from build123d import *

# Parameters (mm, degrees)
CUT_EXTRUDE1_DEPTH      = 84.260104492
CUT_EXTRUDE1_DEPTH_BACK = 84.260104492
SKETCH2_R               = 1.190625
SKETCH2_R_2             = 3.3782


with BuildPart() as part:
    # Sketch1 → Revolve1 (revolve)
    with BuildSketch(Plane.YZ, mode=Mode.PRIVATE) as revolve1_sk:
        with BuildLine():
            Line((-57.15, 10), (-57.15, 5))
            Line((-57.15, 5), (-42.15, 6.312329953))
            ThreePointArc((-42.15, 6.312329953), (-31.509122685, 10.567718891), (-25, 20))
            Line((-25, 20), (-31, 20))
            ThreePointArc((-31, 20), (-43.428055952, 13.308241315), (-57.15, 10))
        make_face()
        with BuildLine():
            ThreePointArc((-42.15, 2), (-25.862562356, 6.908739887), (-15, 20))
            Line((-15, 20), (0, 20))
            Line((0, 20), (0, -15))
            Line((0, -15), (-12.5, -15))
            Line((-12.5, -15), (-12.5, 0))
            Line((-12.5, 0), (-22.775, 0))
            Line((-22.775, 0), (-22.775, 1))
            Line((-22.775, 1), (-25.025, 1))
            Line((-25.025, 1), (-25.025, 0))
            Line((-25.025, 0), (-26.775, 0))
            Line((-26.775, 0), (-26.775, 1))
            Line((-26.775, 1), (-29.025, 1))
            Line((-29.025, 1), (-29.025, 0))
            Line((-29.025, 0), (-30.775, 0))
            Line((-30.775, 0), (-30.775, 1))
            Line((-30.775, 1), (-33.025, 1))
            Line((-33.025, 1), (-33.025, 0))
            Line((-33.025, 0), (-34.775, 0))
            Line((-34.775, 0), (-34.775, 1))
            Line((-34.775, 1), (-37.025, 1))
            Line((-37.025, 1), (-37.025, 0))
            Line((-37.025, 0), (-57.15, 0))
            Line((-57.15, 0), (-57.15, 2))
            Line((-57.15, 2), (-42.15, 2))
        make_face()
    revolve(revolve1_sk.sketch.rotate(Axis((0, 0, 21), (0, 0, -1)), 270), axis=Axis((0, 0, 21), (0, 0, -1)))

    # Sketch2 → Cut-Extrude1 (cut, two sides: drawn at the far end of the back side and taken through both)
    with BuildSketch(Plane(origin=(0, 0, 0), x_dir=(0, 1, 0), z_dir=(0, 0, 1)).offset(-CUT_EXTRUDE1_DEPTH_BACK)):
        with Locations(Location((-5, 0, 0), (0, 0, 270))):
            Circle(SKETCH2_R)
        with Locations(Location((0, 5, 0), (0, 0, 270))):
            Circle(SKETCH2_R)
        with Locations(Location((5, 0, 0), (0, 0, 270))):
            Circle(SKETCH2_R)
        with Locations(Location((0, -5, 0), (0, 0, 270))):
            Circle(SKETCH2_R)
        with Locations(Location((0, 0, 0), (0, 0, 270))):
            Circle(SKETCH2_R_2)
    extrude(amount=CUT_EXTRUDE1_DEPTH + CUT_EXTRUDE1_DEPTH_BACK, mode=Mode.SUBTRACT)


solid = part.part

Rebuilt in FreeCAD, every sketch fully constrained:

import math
import FreeCAD as App
import Part
import Sketcher
Q = App.Units.Quantity

doc = App.newDocument("Part")
params = doc.addObject("Spreadsheet::Sheet", "Params")
for row, (alias, value) in enumerate([
    ("sketch1_radius", "55 mm"),
    ("sketch1_width", "6 mm"),
    ("sketch1_width2", "15 mm"),
    ("sketch1_height", "5 mm"),
    ("sketch1_height2", "2 mm"),
    ("revolution_angle", "360 deg"),
], start=1):
    params.set(f"A{row}", alias)
    params.set(f"B{row}", "=" + value)
    params.setAlias(f"B{row}", alias)

body = doc.addObject("PartDesign::Body", "Body")
body.AllowCompound = True

# Sketch on YZ plane
sketch1 = body.newObject("Sketcher::SketchObject", "Sketch")
sketch1.AttachmentSupport = (doc.getObject("YZ_Plane"), [""])
sketch1.MapMode = "FlatFace"
sketch1.addGeometry([
    Part.LineSegment(App.Vector(-57.15, 10, 0), App.Vector(-57.15, 5, 0)),  # 0
    Part.LineSegment(App.Vector(-57.15, 5, 0), App.Vector(-42.15, 6.31233, 0)),  # 1
    Part.ArcOfCircle(Part.Circle(App.Vector(-43.878184, 26.065565, 0), App.Vector(0, 0, 1), 19.828689), math.radians(-85), math.radians(-17.812224)),  # 2
    Part.LineSegment(App.Vector(-25, 20, 0), App.Vector(-31, 20, 0)),  # 3
    Part.ArcOfCircle(Part.Circle(App.Vector(-63.073137, 64.680128, 0), App.Vector(0, 0, 1), 55), math.radians(-83.817633), math.radians(-54.327742)),  # 4
    Part.ArcOfCircle(Part.Circle(App.Vector(-42.15, 31.475625, 0), App.Vector(0, 0, 1), 29.475625), math.radians(-90), math.radians(-22.912563)),  # 5
    Part.LineSegment(App.Vector(-42.15, 2, 0), App.Vector(-57.15, 2, 0)),  # 6
    Part.LineSegment(App.Vector(-57.15, 2, 0), App.Vector(-57.15, 0, 0)),  # 7
    Part.LineSegment(App.Vector(-57.15, 0, 0), App.Vector(-37.025, 0, 0)),  # 8
    Part.LineSegment(App.Vector(-37.025, 0, 0), App.Vector(-37.025, 1, 0)),  # 9
    Part.LineSegment(App.Vector(-37.025, 1, 0), App.Vector(-34.775, 1, 0)),  # 10
    Part.LineSegment(App.Vector(-34.775, 1, 0), App.Vector(-34.775, 0, 0)),  # 11
    Part.LineSegment(App.Vector(-34.775, 0, 0), App.Vector(-33.025, 0, 0)),  # 12
    Part.LineSegment(App.Vector(-33.025, 0, 0), App.Vector(-33.025, 1, 0)),  # 13
    Part.LineSegment(App.Vector(-33.025, 1, 0), App.Vector(-30.775, 1, 0)),  # 14
    Part.LineSegment(App.Vector(-30.775, 1, 0), App.Vector(-30.775, 0, 0)),  # 15
    Part.LineSegment(App.Vector(-30.775, 0, 0), App.Vector(-29.025, 0, 0)),  # 16
    Part.LineSegment(App.Vector(-29.025, 0, 0), App.Vector(-29.025, 1, 0)),  # 17
    Part.LineSegment(App.Vector(-29.025, 1, 0), App.Vector(-26.775, 1, 0)),  # 18
    Part.LineSegment(App.Vector(-26.775, 1, 0), App.Vector(-26.775, 0, 0)),  # 19
    Part.LineSegment(App.Vector(-26.775, 0, 0), App.Vector(-25.025, 0, 0)),  # 20
    Part.LineSegment(App.Vector(-25.025, 0, 0), App.Vector(-25.025, 1, 0)),  # 21
    Part.LineSegment(App.Vector(-25.025, 1, 0), App.Vector(-22.775, 1, 0)),  # 22
    Part.LineSegment(App.Vector(-22.775, 1, 0), App.Vector(-22.775, 0, 0)),  # 23
    Part.LineSegment(App.Vector(-22.775, 0, 0), App.Vector(-12.5, 0, 0)),  # 24
    Part.LineSegment(App.Vector(-12.5, 0, 0), App.Vector(-12.5, -15, 0)),  # 25
    Part.LineSegment(App.Vector(-12.5, -15, 0), App.Vector(0, -15, 0)),  # 26
    Part.LineSegment(App.Vector(0, -15, 0), App.Vector(0, 20, 0)),  # 27
    Part.LineSegment(App.Vector(0, 20, 0), App.Vector(-15, 20, 0)),  # 28
], False)
sketch1.addConstraint([
    Sketcher.Constraint("Coincident", 0, 2, 1, 1),
    Sketcher.Constraint("Tangent", 1, 2, 2, 1),
    Sketcher.Constraint("Coincident", 2, 2, 3, 1),
    Sketcher.Constraint("Coincident", 3, 2, 4, 2),
    Sketcher.Constraint("Coincident", 4, 1, 0, 1),
    Sketcher.Constraint("Tangent", 5, 1, 6, 1),
    Sketcher.Constraint("Coincident", 6, 2, 7, 1),
    Sketcher.Constraint("Coincident", 7, 2, 8, 1),
    Sketcher.Constraint("Coincident", 8, 2, 9, 1),
    Sketcher.Constraint("Coincident", 9, 2, 10, 1),
    Sketcher.Constraint("Coincident", 10, 2, 11, 1),
    Sketcher.Constraint("Coincident", 11, 2, 12, 1),
    Sketcher.Constraint("Coincident", 12, 2, 13, 1),
    Sketcher.Constraint("Coincident", 13, 2, 14, 1),
    Sketcher.Constraint("Coincident", 14, 2, 15, 1),
    Sketcher.Constraint("Coincident", 15, 2, 16, 1),
    Sketcher.Constraint("Coincident", 16, 2, 17, 1),
    Sketcher.Constraint("Coincident", 17, 2, 18, 1),
    Sketcher.Constraint("Coincident", 18, 2, 19, 1),
    Sketcher.Constraint("Coincident", 19, 2, 20, 1),
    Sketcher.Constraint("Coincident", 20, 2, 21, 1),
    Sketcher.Constraint("Coincident", 21, 2, 22, 1),
    Sketcher.Constraint("Coincident", 22, 2, 23, 1),
    Sketcher.Constraint("Coincident", 23, 2, 24, 1),
    Sketcher.Constraint("Coincident", 24, 2, 25, 1),
    Sketcher.Constraint("Coincident", 25, 2, 26, 1),
    Sketcher.Constraint("Coincident", 26, 2, 27, 1),
    Sketcher.Constraint("Coincident", 27, 2, 28, 1),
    Sketcher.Constraint("Coincident", 28, 2, 5, 2),
    Sketcher.Constraint("Vertical", 0),
    Sketcher.Constraint("Horizontal", 3),
    Sketcher.Constraint("Horizontal", 6),
    Sketcher.Constraint("Vertical", 7),
    Sketcher.Constraint("Horizontal", 8),
    Sketcher.Constraint("Vertical", 9),
    Sketcher.Constraint("Horizontal", 10),
    Sketcher.Constraint("Vertical", 11),
    Sketcher.Constraint("Horizontal", 12),
    Sketcher.Constraint("Vertical", 13),
    Sketcher.Constraint("Horizontal", 14),
    Sketcher.Constraint("Vertical", 15),
    Sketcher.Constraint("Horizontal", 16),
    Sketcher.Constraint("Vertical", 17),
    Sketcher.Constraint("Horizontal", 18),
    Sketcher.Constraint("Vertical", 19),
    Sketcher.Constraint("Horizontal", 20),
    Sketcher.Constraint("Vertical", 21),
    Sketcher.Constraint("Horizontal", 22),
    Sketcher.Constraint("Vertical", 23),
    Sketcher.Constraint("Horizontal", 24),
    Sketcher.Constraint("Vertical", 25),
    Sketcher.Constraint("Horizontal", 26),
    Sketcher.Constraint("Vertical", 27),
    Sketcher.Constraint("Horizontal", 28),
    Sketcher.Constraint("PointOnObject", 7, 2, -1),
    Sketcher.Constraint("PointOnObject", 11, 2, -1),
    Sketcher.Constraint("PointOnObject", 15, 2, -1),
    Sketcher.Constraint("PointOnObject", 19, 2, -1),
    Sketcher.Constraint("PointOnObject", 23, 2, -1),
    Sketcher.Constraint("PointOnObject", 26, 2, -2),
    Sketcher.Constraint("Horizontal", 10, 2, 13, 2),
    Sketcher.Constraint("Horizontal", 14, 2, 17, 2),
    Sketcher.Constraint("Horizontal", 18, 2, 21, 2),
    Sketcher.Constraint("Horizontal", 3, 2, 27, 2),
    Sketcher.Constraint("Vertical", 5, 3, 1, 2),
    Sketcher.Constraint("Vertical", 4, 1, 6, 2),
    Sketcher.Constraint("Equal", 10, 14),
    Sketcher.Constraint("Equal", 12, 16),
    Sketcher.Constraint("Equal", 14, 18),
    Sketcher.Constraint("Equal", 16, 20),
    Sketcher.Constraint("Equal", 18, 22),
    Sketcher.Constraint("Equal", 6, 28),
    Sketcher.Constraint("Equal", 28, 25),
    Sketcher.Constraint("Radius", 4, 55.0),
    Sketcher.Constraint("DistanceX", 3, 2, 3, 1, 6.0),
    Sketcher.Constraint("DistanceX", 6, 2, 6, 1, 15.0),
    Sketcher.Constraint("DistanceY", 0, 2, 0, 1, 5.0),
    Sketcher.Constraint("DistanceY", 7, 2, 7, 1, 2.0),
    Sketcher.Constraint("DistanceY", 9, 1, 9, 2, 1.0),
    Sketcher.Constraint("DistanceY", 27, 1, 27, 2, 35.0),
    Sketcher.Constraint("Angle", 1, Q("5 deg")),
    Sketcher.Constraint("DistanceX", 26, 1, 26, 2, 12.5),
    Sketcher.Constraint("DistanceY", -1, 1, 0, 2, 5.0),
    Sketcher.Constraint("DistanceX", 2, 2, -1, 1, 25.0),
    Sketcher.Constraint("DistanceX", 8, 2, 12, 2, 4.0),
    Sketcher.Constraint("DistanceX", 10, 1, 10, 2, 2.25),
    Sketcher.Constraint("DistanceX", 8, 1, 8, 2, 20.125),
    Sketcher.Constraint("DistanceX", 24, 1, 24, 2, 10.275),
])
sketch1.setExpression("Constraints[73]", "Params.sketch1_radius")
sketch1.setExpression("Constraints[74]", "Params.sketch1_width")
sketch1.setExpression("Constraints[75]", "Params.sketch1_width2")
sketch1.setExpression("Constraints[76]", "Params.sketch1_height")
sketch1.setExpression("Constraints[77]", "Params.sketch1_height2")
revolution = body.newObject("PartDesign::Revolution", "Revolution")
revolution.Profile = sketch1
revolution.ReferenceAxis = (sketch1, ["V_Axis"])
revolution.setExpression("Angle", "Params.revolution_angle")

# Sketch on XY plane
sketch2 = body.newObject("Sketcher::SketchObject", "Sketch001")
sketch2.AttachmentSupport = (doc.getObject("XY_Plane"), [""])
sketch2.MapMode = "FlatFace"
sketch2.addGeometry([
    Part.Circle(App.Vector(0, -5, 0), App.Vector(0, 0, 1), 1.190625),  # 0
    Part.Circle(App.Vector(-5, 0, 0), App.Vector(0, 0, 1), 1.190625),  # 1
    Part.Circle(App.Vector(0, 5, 0), App.Vector(0, 0, 1), 1.190625),  # 2
    Part.Circle(App.Vector(5, 0, 0), App.Vector(0, 0, 1), 1.190625),  # 3
    Part.Circle(App.Vector(0, 0, 0), App.Vector(0, 0, 1), 3.3782),  # 4
], False)
sketch2.addConstraint([
    Sketcher.Constraint("Coincident", 4, 3, -1, 1),
    Sketcher.Constraint("Equal", 0, 1),
    Sketcher.Constraint("Equal", 1, 2),
    Sketcher.Constraint("Equal", 2, 3),
    Sketcher.Constraint("Symmetric", 0, 3, 2, 3, -1, 1),
    Sketcher.Constraint("Symmetric", 1, 3, 3, 3, -1, 1),
    Sketcher.Constraint("PointOnObject", 0, 3, -2),
    Sketcher.Constraint("PointOnObject", 1, 3, -1),
    Sketcher.Constraint("DistanceY", 0, 3, -1, 1, 5.0),
    Sketcher.Constraint("DistanceX", 1, 3, -1, 1, 5.0),
    Sketcher.Constraint("Diameter", 4, 6.7564),
    Sketcher.Constraint("Diameter", 0, 2.38125),
])
pocket1 = body.newObject("PartDesign::Pocket", "Pocket")
pocket1.Profile = sketch2
pocket1.Type = "ThroughAll"
pocket1.Midplane = True

doc.recompute()
